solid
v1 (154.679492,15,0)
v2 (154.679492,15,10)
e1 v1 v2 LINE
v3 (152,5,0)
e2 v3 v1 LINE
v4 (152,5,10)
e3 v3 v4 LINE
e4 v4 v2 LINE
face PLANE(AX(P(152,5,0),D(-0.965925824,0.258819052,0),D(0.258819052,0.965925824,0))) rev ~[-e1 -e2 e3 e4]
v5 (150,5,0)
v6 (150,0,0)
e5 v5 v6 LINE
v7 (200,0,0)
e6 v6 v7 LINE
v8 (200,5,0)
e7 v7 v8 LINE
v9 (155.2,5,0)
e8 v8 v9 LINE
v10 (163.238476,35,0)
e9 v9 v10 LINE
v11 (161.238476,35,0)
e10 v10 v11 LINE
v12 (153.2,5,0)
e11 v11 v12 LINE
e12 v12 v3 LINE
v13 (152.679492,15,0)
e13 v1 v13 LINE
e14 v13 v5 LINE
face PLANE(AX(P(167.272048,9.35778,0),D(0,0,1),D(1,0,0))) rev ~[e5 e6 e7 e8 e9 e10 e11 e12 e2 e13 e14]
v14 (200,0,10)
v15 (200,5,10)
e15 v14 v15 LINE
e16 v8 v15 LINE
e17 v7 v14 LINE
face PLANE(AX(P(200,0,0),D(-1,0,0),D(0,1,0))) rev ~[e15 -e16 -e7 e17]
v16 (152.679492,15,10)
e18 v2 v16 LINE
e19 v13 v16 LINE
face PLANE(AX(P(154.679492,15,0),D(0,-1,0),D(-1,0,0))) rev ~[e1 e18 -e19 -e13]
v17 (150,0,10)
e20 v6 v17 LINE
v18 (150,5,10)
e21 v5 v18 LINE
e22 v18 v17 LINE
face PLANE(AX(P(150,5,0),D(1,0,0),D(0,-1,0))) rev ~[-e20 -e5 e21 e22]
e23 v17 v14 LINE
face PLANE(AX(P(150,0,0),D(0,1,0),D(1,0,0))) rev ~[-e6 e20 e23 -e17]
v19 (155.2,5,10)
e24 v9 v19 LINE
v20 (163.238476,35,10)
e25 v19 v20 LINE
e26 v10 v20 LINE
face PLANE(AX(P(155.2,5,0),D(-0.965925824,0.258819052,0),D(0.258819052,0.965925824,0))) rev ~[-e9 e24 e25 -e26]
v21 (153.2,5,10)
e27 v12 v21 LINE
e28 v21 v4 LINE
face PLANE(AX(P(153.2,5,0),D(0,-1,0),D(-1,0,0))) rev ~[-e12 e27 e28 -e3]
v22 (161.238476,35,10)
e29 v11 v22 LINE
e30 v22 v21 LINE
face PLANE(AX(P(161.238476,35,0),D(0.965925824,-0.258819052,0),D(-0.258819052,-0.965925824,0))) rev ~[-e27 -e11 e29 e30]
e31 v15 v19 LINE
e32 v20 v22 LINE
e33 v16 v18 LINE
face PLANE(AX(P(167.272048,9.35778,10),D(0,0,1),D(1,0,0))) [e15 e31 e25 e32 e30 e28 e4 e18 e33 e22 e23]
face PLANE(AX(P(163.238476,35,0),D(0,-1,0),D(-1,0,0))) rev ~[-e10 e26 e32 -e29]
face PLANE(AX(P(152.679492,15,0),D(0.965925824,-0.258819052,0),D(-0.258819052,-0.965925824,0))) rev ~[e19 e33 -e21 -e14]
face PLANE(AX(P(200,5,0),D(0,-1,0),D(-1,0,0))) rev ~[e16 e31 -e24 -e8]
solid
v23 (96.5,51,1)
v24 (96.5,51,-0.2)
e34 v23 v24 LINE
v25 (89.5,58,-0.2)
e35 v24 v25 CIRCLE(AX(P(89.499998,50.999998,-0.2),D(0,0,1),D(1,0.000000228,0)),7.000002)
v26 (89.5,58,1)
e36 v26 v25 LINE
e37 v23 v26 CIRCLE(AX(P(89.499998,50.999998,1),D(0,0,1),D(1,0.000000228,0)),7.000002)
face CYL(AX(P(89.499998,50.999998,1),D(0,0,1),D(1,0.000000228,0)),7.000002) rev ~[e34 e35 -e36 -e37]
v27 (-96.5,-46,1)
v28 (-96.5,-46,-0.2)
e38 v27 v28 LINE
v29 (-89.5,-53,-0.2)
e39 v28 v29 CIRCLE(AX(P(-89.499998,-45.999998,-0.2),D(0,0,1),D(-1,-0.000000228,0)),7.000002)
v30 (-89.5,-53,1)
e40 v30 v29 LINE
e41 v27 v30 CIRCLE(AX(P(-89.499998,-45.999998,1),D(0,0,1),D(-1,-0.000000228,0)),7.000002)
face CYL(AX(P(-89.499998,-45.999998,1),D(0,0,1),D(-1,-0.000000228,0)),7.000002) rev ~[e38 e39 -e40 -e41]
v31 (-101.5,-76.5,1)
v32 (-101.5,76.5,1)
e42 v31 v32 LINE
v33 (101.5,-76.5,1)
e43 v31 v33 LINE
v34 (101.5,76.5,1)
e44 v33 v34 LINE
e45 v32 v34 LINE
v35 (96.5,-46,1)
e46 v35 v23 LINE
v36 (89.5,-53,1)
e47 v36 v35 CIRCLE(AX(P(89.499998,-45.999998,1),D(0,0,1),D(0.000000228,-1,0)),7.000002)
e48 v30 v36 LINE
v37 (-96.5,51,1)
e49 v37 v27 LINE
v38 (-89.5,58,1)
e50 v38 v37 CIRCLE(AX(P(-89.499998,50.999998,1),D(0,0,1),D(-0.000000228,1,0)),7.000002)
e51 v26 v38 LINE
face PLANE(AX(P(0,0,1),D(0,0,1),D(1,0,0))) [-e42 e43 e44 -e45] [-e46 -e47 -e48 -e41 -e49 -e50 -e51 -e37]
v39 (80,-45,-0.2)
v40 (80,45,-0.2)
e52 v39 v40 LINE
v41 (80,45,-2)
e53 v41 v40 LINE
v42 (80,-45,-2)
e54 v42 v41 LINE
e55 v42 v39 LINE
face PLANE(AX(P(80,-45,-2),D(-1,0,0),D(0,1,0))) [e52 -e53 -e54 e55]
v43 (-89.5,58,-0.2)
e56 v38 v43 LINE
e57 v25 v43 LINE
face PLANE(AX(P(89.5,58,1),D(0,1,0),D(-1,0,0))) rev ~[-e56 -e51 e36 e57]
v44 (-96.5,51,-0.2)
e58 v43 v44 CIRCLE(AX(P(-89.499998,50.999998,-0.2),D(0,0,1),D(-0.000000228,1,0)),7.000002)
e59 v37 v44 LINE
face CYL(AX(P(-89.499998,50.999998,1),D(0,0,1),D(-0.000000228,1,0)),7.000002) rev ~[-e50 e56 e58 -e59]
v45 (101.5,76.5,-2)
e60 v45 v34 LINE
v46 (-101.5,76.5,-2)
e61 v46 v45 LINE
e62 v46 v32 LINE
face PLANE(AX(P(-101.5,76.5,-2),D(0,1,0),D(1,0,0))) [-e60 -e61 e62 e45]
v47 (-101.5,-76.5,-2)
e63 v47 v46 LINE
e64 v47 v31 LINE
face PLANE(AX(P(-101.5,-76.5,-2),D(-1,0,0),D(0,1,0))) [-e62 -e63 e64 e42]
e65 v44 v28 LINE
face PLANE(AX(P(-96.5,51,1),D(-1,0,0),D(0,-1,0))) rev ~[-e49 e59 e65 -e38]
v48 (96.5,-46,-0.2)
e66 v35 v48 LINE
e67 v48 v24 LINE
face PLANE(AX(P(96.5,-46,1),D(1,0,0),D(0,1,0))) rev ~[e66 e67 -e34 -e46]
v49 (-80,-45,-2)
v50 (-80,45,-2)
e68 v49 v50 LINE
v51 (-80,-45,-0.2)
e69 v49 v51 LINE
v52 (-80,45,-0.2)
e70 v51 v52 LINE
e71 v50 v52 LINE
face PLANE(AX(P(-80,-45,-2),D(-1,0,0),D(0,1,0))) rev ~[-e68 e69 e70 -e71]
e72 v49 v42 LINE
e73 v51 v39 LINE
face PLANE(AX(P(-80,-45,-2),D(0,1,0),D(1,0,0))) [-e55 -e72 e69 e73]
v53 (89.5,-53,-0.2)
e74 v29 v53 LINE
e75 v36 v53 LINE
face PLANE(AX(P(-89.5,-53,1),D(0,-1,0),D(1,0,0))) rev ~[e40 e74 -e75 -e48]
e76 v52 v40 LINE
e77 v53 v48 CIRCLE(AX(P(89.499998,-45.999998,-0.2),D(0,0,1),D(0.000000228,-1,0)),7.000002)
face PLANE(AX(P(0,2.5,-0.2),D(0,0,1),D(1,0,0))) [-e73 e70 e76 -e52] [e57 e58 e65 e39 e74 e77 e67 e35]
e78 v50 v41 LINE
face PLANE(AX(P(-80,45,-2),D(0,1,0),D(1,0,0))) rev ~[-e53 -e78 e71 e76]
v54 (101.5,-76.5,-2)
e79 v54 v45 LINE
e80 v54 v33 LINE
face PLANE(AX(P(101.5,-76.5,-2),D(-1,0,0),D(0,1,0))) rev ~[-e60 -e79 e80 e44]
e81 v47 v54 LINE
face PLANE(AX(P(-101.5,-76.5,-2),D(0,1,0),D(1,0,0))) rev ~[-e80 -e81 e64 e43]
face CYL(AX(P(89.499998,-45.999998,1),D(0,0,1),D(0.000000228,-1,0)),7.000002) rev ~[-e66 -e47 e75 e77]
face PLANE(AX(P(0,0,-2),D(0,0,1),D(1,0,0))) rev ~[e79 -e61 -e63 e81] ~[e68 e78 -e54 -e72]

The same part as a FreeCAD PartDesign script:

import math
import FreeCAD as App
import Part
import Sketcher
from FreeCAD import Vector
Q = App.Units.Quantity


def add_polygon(sketch, points):
    """Adds a closed chain of lines whose ends are joined by coincident constraints."""
    first, n = sketch.GeometryCount, len(points)
    for a, b in zip(points, points[1:] + points[:1]):
        sketch.addGeometry(Part.LineSegment(App.Vector(*a, 0), App.Vector(*b, 0)), False)
    for i in range(n):
        sketch.addConstraint(Sketcher.Constraint("Coincident", first + i, 2, first + (i + 1) % n, 1))

doc = App.newDocument("Part")
params = doc.addObject("Spreadsheet::Sheet", "Params")
for row, (alias, value) in enumerate([
    ("sketch1_width", "203 mm"),
    ("sketch1_width2", "160 mm"),
    ("sketch1_height", "153 mm"),
    ("sketch1_height2", "90 mm"),
    ("pad1_length", "3 mm"),
    ("sketch2_radius", "7.000002 mm"),
    ("sketch2_width", "179 mm"),
    ("sketch2_height", "97 mm"),
    ("pocket1_length", "1.2 mm"),
    ("sketch3_width", "50 mm"),
    ("sketch3_width2", "2 mm"),
    ("sketch3_height", "5 mm"),
    ("sketch3_width3", "44.8 mm"),
    ("pad2_length", "10 mm"),
], start=1):
    params.set(f"A{row}", alias)
    params.set(f"B{row}", "=" + value)
    params.setAlias(f"B{row}", alias)

body = doc.addObject("PartDesign::Body", "Body")

# Sketch on XY plane
sketch1 = doc.addObject("Sketcher::SketchObject", "Sketch")
body.addObject(sketch1)
sketch1.AttachmentSupport = (doc.XY_Plane, [""])
sketch1.MapMode = "FlatFace"
sketch1.AttachmentOffset = App.Placement(Vector(0, 0, -2), App.Rotation())
add_polygon(sketch1, [(-102, 76), (-102, -76), (102, -76), (102, 76)])  # lines 0-3
add_polygon(sketch1, [(80, -45), (-80, -45), (-80, 45), (80, 45)])  # lines 4-7
sketch1.addConstraint([
    Sketcher.Constraint("Vertical", 0),
    Sketcher.Constraint("Horizontal", 1),
    Sketcher.Constraint("Vertical", 2),
    Sketcher.Constraint("Horizontal", 3),
    Sketcher.Constraint("Horizontal", 4),
    Sketcher.Constraint("Vertical", 5),
    Sketcher.Constraint("Horizontal", 6),
    Sketcher.Constraint("Vertical", 7),
    Sketcher.Constraint("Symmetric", 0, 2, 2, 2, -1, 1),
    Sketcher.Constraint("Symmetric", 4, 2, 6, 2, -1, 1),
    Sketcher.Constraint("DistanceX", 1, 1, 1, 2, Q("203 mm")),
    Sketcher.Constraint("DistanceX", 4, 2, 4, 1, Q("160 mm")),
    Sketcher.Constraint("DistanceY", 0, 2, 0, 1, Q("153 mm")),
    Sketcher.Constraint("DistanceY", 5, 1, 5, 2, Q("90 mm")),
])
sketch1.setExpression("Constraints[18]", "Params.sketch1_width")
sketch1.setExpression("Constraints[19]", "Params.sketch1_width2")
sketch1.setExpression("Constraints[20]", "Params.sketch1_height")
sketch1.setExpression("Constraints[21]", "Params.sketch1_height2")
pad1 = doc.addObject("PartDesign::Pad", "Pad")
body.addObject(pad1)
pad1.Profile = sketch1
pad1.setExpression("Length", "Params.pad1_length")

# Sketch on XY plane
sketch2 = doc.addObject("Sketcher::SketchObject", "Sketch001")
body.addObject(sketch2)
sketch2.AttachmentSupport = (doc.XY_Plane, [""])
sketch2.MapMode = "FlatFace"
sketch2.AttachmentOffset = App.Placement(Vector(0, 0, 1), App.Rotation())
sketch2.addGeometry([
    Part.LineSegment(Vector(-96, 51, 0), Vector(-96, -46, 0)),  # 0
    Part.ArcOfCircle(Part.Circle(Vector(-89, -46, 0), Vector(0, 0, 1), 7), math.radians(-180), math.radians(-90)),  # 1
    Part.LineSegment(Vector(-90, -53, 0), Vector(90, -53, 0)),  # 2
    Part.ArcOfCircle(Part.Circle(Vector(89, -46, 0), Vector(0, 0, 1), 7), math.radians(-90), math.radians(0)),  # 3
    Part.LineSegment(Vector(96, -46, 0), Vector(96, 51, 0)),  # 4
    Part.ArcOfCircle(Part.Circle(Vector(89, 51, 0), Vector(0, 0, 1), 7), math.radians(0), math.radians(90)),  # 5
    Part.LineSegment(Vector(90, 58, 0), Vector(-90, 58, 0)),  # 6
    Part.ArcOfCircle(Part.Circle(Vector(-89, 51, 0), Vector(0, 0, 1), 7), math.radians(90), math.radians(180)),  # 7
], False)
sketch2.addConstraint([
    Sketcher.Constraint("Tangent", 0, 2, 1, 1),
    Sketcher.Constraint("Tangent", 1, 2, 2, 1),
    Sketcher.Constraint("Tangent", 2, 2, 3, 1),
    Sketcher.Constraint("Tangent", 3, 2, 4, 1),
    Sketcher.Constraint("Tangent", 4, 2, 5, 1),
    Sketcher.Constraint("Tangent", 5, 2, 6, 1),
    Sketcher.Constraint("Tangent", 6, 2, 7, 1),
    Sketcher.Constraint("Tangent", 7, 2, 0, 1),
    Sketcher.Constraint("Vertical", 0),
    Sketcher.Constraint("Horizontal", 2),
    Sketcher.Constraint("Vertical", 4),
    Sketcher.Constraint("Horizontal", 6),
    Sketcher.Constraint("Equal", 1, 3),
    Sketcher.Constraint("Equal", 3, 5),
    Sketcher.Constraint("Equal", 5, 7),
    Sketcher.Constraint("Radius", 1, Q("7.000002 mm")),
    Sketcher.Constraint("DistanceX", 2, 1, 2, 2, Q("179 mm")),
    Sketcher.Constraint("DistanceY", 0, 2, 0, 1, Q("97 mm")),
    Sketcher.Constraint("DistanceY", 1, 3, -1, 1, Q("45.999998 mm")),
    Sketcher.Constraint("DistanceX", 1, 3, -1, 1, Q("89.499998 mm")),
])
sketch2.setExpression("Constraints[15]", "Params.sketch2_radius")
sketch2.setExpression("Constraints[16]", "Params.sketch2_width")
sketch2.setExpression("Constraints[17]", "Params.sketch2_height")
pocket1 = doc.addObject("PartDesign::Pocket", "Pocket")
body.addObject(pocket1)
pocket1.Profile = sketch2
pocket1.setExpression("Length", "Params.pocket1_length")
body2 = doc.addObject("PartDesign::Body", "Body001")

# Sketch on XY plane
sketch3 = doc.addObject("Sketcher::SketchObject", "Sketch002")
body2.addObject(sketch3)
sketch3.AttachmentSupport = (doc.getObject("XY_Plane001"), [""])
sketch3.MapMode = "FlatFace"
add_polygon(sketch3, [(150, 0), (200, 0), (200, 5), (155.2, 5), (163.2, 35), (161.2, 35), (153.2, 5), (152, 5), (154.7, 15), (152.7, 15), (150, 5)])  # lines 0-10
sketch3.addConstraint([
    Sketcher.Constraint("Horizontal", 0),
    Sketcher.Constraint("Vertical", 1),
    Sketcher.Constraint("Horizontal", 2),
    Sketcher.Constraint("Horizontal", 4),
    Sketcher.Constraint("Horizontal", 6),
    Sketcher.Constraint("Horizontal", 8),
    Sketcher.Constraint("Vertical", 10),
    Sketcher.Constraint("PointOnObject", 0, 2, -1),
    Sketcher.Constraint("Parallel", 3, 5),
    Sketcher.Constraint("Parallel", 5, 7),
    Sketcher.Constraint("Parallel", 7, 9),
    Sketcher.Constraint("Horizontal", 2, 2, 5, 2),
    Sketcher.Constraint("Horizontal", 6, 2, 9, 2),
    Sketcher.Constraint("Equal", 4, 8),
    Sketcher.Constraint("DistanceX", 0, 1, 0, 2, Q("50 mm")),
    Sketcher.Constraint("DistanceX", 4, 2, 4, 1, Q("2 mm")),
    Sketcher.Constraint("DistanceY", 1, 1, 1, 2, Q("5 mm")),
    Sketcher.Constraint("Angle", 3, Q("75 deg")),
    Sketcher.Constraint("DistanceX", 2, 2, 2, 1, Q("44.8 mm")),
    Sketcher.Constraint("DistanceX", -1, 1, 0, 2, Q("200 mm")),
    Sketcher.Constraint("DistanceY", -1, 1, 3, 2, Q("35 mm")),
    Sketcher.Constraint("DistanceY", -1, 1, 7, 2, Q("15 mm")),
])
sketch3.setExpression("Constraints[25]", "Params.sketch3_width")
sketch3.setExpression("Constraints[26]", "Params.sketch3_width2")
sketch3.setExpression("Constraints[27]", "Params.sketch3_height")
sketch3.setExpression("Constraints[29]", "Params.sketch3_width3")
pad2 = doc.addObject("PartDesign::Pad", "Pad001")
body2.addObject(pad2)
pad2.Profile = sketch3
pad2.setExpression("Length", "Params.pad2_length")

doc.recompute()
